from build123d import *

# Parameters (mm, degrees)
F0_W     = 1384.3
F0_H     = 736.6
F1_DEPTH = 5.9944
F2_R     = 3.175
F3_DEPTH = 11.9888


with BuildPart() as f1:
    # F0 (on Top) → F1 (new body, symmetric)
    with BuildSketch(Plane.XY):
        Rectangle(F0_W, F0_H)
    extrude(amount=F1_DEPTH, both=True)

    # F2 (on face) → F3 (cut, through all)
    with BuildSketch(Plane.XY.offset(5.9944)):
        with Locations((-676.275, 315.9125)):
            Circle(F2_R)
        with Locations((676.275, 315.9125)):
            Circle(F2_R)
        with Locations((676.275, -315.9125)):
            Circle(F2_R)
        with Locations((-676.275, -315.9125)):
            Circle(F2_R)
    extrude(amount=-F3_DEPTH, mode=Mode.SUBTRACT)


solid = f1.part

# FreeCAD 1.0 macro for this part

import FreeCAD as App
import Part
import Sketcher
Q = App.Units.Quantity

doc = App.newDocument("Part")
body = doc.addObject("PartDesign::Body", "Body")

sketch1 = body.newObject("Sketcher::SketchObject", "Sketch")
sketch1.AttachmentSupport = (doc.getObject("XY_Plane"), [""])
sketch1.MapMode = "FlatFace"
sketch1.addGeometry([
    Part.LineSegment(App.Vector(-692, 368, 0), App.Vector(-692, -368, 0)),
    Part.LineSegment(App.Vector(-692, -368, 0), App.Vector(692, -368, 0)),
    Part.LineSegment(App.Vector(692, -368, 0), App.Vector(692, 368, 0)),
    Part.LineSegment(App.Vector(692, 368, 0), App.Vector(-692, 368, 0)),
], False)
sketch1.addConstraint([
    Sketcher.Constraint("Coincident", 0, 2, 1, 1),
    Sketcher.Constraint("Coincident", 1, 2, 2, 1),
    Sketcher.Constraint("Coincident", 2, 2, 3, 1),
    Sketcher.Constraint("Coincident", 3, 2, 0, 1),
    Sketcher.Constraint("Vertical", 0),
    Sketcher.Constraint("Horizontal", 1),
    Sketcher.Constraint("Vertical", 2),
    Sketcher.Constraint("Horizontal", 3),
    Sketcher.Constraint("Symmetric", 0, 2, 2, 2, -1, 1),
    Sketcher.Constraint("DistanceY", 0, 2, 0, 1, Q("29 in")),
    Sketcher.Constraint("DistanceX", 1, 1, 1, 2, Q("54.5 in")),
])
pad1 = body.newObject("PartDesign::Pad", "Pad")
pad1.Profile = sketch1
pad1.Length = Q("0.472 in")
pad1.Midplane = True

sketch2 = body.newObject("Sketcher::SketchObject", "Sketch001")
sketch2.AttachmentSupport = (doc.getObject("XY_Plane"), [""])
sketch2.MapMode = "FlatFace"
sketch2.AttachmentOffset = App.Placement(App.Vector(0, 0, 0.236 * 25.4), App.Rotation())
sketch2.addGeometry([
    Part.Circle(App.Vector(-676.3, 315.9, 0), App.Vector(0, 0, 1), 3.2),
    Part.Circle(App.Vector(676.3, 315.9, 0), App.Vector(0, 0, 1), 3.2),
    Part.Circle(App.Vector(676.3, -315.9, 0), App.Vector(0, 0, 1), 3.2),
    Part.Circle(App.Vector(-676.3, -315.9, 0), App.Vector(0, 0, 1), 3.2),
], False)
sketch2.addConstraint([
    Sketcher.Constraint("Equal", 0, 1),
    Sketcher.Constraint("Equal", 1, 2),
    Sketcher.Constraint("Equal", 2, 3),
    Sketcher.Constraint("Symmetric", 0, 3, 2, 3, -1, 1),
    Sketcher.Constraint("Symmetric", 1, 3, 3, 3, -1, 1),
    Sketcher.Constraint("Symmetric", 0, 3, 1, 3, -2),
    Sketcher.Constraint("Diameter", 0, Q("0.25 in")),
    Sketcher.Constraint("DistanceX", 0, 3, 1, 3, Q("53.25 in")),
    Sketcher.Constraint("DistanceY", -1, 1, 0, 3, Q("12.4375 in")),
])
pocket1 = body.newObject("PartDesign::Pocket", "Pocket")
pocket1.Profile = sketch2
pocket1.Type = "ThroughAll"

doc.recompute()
